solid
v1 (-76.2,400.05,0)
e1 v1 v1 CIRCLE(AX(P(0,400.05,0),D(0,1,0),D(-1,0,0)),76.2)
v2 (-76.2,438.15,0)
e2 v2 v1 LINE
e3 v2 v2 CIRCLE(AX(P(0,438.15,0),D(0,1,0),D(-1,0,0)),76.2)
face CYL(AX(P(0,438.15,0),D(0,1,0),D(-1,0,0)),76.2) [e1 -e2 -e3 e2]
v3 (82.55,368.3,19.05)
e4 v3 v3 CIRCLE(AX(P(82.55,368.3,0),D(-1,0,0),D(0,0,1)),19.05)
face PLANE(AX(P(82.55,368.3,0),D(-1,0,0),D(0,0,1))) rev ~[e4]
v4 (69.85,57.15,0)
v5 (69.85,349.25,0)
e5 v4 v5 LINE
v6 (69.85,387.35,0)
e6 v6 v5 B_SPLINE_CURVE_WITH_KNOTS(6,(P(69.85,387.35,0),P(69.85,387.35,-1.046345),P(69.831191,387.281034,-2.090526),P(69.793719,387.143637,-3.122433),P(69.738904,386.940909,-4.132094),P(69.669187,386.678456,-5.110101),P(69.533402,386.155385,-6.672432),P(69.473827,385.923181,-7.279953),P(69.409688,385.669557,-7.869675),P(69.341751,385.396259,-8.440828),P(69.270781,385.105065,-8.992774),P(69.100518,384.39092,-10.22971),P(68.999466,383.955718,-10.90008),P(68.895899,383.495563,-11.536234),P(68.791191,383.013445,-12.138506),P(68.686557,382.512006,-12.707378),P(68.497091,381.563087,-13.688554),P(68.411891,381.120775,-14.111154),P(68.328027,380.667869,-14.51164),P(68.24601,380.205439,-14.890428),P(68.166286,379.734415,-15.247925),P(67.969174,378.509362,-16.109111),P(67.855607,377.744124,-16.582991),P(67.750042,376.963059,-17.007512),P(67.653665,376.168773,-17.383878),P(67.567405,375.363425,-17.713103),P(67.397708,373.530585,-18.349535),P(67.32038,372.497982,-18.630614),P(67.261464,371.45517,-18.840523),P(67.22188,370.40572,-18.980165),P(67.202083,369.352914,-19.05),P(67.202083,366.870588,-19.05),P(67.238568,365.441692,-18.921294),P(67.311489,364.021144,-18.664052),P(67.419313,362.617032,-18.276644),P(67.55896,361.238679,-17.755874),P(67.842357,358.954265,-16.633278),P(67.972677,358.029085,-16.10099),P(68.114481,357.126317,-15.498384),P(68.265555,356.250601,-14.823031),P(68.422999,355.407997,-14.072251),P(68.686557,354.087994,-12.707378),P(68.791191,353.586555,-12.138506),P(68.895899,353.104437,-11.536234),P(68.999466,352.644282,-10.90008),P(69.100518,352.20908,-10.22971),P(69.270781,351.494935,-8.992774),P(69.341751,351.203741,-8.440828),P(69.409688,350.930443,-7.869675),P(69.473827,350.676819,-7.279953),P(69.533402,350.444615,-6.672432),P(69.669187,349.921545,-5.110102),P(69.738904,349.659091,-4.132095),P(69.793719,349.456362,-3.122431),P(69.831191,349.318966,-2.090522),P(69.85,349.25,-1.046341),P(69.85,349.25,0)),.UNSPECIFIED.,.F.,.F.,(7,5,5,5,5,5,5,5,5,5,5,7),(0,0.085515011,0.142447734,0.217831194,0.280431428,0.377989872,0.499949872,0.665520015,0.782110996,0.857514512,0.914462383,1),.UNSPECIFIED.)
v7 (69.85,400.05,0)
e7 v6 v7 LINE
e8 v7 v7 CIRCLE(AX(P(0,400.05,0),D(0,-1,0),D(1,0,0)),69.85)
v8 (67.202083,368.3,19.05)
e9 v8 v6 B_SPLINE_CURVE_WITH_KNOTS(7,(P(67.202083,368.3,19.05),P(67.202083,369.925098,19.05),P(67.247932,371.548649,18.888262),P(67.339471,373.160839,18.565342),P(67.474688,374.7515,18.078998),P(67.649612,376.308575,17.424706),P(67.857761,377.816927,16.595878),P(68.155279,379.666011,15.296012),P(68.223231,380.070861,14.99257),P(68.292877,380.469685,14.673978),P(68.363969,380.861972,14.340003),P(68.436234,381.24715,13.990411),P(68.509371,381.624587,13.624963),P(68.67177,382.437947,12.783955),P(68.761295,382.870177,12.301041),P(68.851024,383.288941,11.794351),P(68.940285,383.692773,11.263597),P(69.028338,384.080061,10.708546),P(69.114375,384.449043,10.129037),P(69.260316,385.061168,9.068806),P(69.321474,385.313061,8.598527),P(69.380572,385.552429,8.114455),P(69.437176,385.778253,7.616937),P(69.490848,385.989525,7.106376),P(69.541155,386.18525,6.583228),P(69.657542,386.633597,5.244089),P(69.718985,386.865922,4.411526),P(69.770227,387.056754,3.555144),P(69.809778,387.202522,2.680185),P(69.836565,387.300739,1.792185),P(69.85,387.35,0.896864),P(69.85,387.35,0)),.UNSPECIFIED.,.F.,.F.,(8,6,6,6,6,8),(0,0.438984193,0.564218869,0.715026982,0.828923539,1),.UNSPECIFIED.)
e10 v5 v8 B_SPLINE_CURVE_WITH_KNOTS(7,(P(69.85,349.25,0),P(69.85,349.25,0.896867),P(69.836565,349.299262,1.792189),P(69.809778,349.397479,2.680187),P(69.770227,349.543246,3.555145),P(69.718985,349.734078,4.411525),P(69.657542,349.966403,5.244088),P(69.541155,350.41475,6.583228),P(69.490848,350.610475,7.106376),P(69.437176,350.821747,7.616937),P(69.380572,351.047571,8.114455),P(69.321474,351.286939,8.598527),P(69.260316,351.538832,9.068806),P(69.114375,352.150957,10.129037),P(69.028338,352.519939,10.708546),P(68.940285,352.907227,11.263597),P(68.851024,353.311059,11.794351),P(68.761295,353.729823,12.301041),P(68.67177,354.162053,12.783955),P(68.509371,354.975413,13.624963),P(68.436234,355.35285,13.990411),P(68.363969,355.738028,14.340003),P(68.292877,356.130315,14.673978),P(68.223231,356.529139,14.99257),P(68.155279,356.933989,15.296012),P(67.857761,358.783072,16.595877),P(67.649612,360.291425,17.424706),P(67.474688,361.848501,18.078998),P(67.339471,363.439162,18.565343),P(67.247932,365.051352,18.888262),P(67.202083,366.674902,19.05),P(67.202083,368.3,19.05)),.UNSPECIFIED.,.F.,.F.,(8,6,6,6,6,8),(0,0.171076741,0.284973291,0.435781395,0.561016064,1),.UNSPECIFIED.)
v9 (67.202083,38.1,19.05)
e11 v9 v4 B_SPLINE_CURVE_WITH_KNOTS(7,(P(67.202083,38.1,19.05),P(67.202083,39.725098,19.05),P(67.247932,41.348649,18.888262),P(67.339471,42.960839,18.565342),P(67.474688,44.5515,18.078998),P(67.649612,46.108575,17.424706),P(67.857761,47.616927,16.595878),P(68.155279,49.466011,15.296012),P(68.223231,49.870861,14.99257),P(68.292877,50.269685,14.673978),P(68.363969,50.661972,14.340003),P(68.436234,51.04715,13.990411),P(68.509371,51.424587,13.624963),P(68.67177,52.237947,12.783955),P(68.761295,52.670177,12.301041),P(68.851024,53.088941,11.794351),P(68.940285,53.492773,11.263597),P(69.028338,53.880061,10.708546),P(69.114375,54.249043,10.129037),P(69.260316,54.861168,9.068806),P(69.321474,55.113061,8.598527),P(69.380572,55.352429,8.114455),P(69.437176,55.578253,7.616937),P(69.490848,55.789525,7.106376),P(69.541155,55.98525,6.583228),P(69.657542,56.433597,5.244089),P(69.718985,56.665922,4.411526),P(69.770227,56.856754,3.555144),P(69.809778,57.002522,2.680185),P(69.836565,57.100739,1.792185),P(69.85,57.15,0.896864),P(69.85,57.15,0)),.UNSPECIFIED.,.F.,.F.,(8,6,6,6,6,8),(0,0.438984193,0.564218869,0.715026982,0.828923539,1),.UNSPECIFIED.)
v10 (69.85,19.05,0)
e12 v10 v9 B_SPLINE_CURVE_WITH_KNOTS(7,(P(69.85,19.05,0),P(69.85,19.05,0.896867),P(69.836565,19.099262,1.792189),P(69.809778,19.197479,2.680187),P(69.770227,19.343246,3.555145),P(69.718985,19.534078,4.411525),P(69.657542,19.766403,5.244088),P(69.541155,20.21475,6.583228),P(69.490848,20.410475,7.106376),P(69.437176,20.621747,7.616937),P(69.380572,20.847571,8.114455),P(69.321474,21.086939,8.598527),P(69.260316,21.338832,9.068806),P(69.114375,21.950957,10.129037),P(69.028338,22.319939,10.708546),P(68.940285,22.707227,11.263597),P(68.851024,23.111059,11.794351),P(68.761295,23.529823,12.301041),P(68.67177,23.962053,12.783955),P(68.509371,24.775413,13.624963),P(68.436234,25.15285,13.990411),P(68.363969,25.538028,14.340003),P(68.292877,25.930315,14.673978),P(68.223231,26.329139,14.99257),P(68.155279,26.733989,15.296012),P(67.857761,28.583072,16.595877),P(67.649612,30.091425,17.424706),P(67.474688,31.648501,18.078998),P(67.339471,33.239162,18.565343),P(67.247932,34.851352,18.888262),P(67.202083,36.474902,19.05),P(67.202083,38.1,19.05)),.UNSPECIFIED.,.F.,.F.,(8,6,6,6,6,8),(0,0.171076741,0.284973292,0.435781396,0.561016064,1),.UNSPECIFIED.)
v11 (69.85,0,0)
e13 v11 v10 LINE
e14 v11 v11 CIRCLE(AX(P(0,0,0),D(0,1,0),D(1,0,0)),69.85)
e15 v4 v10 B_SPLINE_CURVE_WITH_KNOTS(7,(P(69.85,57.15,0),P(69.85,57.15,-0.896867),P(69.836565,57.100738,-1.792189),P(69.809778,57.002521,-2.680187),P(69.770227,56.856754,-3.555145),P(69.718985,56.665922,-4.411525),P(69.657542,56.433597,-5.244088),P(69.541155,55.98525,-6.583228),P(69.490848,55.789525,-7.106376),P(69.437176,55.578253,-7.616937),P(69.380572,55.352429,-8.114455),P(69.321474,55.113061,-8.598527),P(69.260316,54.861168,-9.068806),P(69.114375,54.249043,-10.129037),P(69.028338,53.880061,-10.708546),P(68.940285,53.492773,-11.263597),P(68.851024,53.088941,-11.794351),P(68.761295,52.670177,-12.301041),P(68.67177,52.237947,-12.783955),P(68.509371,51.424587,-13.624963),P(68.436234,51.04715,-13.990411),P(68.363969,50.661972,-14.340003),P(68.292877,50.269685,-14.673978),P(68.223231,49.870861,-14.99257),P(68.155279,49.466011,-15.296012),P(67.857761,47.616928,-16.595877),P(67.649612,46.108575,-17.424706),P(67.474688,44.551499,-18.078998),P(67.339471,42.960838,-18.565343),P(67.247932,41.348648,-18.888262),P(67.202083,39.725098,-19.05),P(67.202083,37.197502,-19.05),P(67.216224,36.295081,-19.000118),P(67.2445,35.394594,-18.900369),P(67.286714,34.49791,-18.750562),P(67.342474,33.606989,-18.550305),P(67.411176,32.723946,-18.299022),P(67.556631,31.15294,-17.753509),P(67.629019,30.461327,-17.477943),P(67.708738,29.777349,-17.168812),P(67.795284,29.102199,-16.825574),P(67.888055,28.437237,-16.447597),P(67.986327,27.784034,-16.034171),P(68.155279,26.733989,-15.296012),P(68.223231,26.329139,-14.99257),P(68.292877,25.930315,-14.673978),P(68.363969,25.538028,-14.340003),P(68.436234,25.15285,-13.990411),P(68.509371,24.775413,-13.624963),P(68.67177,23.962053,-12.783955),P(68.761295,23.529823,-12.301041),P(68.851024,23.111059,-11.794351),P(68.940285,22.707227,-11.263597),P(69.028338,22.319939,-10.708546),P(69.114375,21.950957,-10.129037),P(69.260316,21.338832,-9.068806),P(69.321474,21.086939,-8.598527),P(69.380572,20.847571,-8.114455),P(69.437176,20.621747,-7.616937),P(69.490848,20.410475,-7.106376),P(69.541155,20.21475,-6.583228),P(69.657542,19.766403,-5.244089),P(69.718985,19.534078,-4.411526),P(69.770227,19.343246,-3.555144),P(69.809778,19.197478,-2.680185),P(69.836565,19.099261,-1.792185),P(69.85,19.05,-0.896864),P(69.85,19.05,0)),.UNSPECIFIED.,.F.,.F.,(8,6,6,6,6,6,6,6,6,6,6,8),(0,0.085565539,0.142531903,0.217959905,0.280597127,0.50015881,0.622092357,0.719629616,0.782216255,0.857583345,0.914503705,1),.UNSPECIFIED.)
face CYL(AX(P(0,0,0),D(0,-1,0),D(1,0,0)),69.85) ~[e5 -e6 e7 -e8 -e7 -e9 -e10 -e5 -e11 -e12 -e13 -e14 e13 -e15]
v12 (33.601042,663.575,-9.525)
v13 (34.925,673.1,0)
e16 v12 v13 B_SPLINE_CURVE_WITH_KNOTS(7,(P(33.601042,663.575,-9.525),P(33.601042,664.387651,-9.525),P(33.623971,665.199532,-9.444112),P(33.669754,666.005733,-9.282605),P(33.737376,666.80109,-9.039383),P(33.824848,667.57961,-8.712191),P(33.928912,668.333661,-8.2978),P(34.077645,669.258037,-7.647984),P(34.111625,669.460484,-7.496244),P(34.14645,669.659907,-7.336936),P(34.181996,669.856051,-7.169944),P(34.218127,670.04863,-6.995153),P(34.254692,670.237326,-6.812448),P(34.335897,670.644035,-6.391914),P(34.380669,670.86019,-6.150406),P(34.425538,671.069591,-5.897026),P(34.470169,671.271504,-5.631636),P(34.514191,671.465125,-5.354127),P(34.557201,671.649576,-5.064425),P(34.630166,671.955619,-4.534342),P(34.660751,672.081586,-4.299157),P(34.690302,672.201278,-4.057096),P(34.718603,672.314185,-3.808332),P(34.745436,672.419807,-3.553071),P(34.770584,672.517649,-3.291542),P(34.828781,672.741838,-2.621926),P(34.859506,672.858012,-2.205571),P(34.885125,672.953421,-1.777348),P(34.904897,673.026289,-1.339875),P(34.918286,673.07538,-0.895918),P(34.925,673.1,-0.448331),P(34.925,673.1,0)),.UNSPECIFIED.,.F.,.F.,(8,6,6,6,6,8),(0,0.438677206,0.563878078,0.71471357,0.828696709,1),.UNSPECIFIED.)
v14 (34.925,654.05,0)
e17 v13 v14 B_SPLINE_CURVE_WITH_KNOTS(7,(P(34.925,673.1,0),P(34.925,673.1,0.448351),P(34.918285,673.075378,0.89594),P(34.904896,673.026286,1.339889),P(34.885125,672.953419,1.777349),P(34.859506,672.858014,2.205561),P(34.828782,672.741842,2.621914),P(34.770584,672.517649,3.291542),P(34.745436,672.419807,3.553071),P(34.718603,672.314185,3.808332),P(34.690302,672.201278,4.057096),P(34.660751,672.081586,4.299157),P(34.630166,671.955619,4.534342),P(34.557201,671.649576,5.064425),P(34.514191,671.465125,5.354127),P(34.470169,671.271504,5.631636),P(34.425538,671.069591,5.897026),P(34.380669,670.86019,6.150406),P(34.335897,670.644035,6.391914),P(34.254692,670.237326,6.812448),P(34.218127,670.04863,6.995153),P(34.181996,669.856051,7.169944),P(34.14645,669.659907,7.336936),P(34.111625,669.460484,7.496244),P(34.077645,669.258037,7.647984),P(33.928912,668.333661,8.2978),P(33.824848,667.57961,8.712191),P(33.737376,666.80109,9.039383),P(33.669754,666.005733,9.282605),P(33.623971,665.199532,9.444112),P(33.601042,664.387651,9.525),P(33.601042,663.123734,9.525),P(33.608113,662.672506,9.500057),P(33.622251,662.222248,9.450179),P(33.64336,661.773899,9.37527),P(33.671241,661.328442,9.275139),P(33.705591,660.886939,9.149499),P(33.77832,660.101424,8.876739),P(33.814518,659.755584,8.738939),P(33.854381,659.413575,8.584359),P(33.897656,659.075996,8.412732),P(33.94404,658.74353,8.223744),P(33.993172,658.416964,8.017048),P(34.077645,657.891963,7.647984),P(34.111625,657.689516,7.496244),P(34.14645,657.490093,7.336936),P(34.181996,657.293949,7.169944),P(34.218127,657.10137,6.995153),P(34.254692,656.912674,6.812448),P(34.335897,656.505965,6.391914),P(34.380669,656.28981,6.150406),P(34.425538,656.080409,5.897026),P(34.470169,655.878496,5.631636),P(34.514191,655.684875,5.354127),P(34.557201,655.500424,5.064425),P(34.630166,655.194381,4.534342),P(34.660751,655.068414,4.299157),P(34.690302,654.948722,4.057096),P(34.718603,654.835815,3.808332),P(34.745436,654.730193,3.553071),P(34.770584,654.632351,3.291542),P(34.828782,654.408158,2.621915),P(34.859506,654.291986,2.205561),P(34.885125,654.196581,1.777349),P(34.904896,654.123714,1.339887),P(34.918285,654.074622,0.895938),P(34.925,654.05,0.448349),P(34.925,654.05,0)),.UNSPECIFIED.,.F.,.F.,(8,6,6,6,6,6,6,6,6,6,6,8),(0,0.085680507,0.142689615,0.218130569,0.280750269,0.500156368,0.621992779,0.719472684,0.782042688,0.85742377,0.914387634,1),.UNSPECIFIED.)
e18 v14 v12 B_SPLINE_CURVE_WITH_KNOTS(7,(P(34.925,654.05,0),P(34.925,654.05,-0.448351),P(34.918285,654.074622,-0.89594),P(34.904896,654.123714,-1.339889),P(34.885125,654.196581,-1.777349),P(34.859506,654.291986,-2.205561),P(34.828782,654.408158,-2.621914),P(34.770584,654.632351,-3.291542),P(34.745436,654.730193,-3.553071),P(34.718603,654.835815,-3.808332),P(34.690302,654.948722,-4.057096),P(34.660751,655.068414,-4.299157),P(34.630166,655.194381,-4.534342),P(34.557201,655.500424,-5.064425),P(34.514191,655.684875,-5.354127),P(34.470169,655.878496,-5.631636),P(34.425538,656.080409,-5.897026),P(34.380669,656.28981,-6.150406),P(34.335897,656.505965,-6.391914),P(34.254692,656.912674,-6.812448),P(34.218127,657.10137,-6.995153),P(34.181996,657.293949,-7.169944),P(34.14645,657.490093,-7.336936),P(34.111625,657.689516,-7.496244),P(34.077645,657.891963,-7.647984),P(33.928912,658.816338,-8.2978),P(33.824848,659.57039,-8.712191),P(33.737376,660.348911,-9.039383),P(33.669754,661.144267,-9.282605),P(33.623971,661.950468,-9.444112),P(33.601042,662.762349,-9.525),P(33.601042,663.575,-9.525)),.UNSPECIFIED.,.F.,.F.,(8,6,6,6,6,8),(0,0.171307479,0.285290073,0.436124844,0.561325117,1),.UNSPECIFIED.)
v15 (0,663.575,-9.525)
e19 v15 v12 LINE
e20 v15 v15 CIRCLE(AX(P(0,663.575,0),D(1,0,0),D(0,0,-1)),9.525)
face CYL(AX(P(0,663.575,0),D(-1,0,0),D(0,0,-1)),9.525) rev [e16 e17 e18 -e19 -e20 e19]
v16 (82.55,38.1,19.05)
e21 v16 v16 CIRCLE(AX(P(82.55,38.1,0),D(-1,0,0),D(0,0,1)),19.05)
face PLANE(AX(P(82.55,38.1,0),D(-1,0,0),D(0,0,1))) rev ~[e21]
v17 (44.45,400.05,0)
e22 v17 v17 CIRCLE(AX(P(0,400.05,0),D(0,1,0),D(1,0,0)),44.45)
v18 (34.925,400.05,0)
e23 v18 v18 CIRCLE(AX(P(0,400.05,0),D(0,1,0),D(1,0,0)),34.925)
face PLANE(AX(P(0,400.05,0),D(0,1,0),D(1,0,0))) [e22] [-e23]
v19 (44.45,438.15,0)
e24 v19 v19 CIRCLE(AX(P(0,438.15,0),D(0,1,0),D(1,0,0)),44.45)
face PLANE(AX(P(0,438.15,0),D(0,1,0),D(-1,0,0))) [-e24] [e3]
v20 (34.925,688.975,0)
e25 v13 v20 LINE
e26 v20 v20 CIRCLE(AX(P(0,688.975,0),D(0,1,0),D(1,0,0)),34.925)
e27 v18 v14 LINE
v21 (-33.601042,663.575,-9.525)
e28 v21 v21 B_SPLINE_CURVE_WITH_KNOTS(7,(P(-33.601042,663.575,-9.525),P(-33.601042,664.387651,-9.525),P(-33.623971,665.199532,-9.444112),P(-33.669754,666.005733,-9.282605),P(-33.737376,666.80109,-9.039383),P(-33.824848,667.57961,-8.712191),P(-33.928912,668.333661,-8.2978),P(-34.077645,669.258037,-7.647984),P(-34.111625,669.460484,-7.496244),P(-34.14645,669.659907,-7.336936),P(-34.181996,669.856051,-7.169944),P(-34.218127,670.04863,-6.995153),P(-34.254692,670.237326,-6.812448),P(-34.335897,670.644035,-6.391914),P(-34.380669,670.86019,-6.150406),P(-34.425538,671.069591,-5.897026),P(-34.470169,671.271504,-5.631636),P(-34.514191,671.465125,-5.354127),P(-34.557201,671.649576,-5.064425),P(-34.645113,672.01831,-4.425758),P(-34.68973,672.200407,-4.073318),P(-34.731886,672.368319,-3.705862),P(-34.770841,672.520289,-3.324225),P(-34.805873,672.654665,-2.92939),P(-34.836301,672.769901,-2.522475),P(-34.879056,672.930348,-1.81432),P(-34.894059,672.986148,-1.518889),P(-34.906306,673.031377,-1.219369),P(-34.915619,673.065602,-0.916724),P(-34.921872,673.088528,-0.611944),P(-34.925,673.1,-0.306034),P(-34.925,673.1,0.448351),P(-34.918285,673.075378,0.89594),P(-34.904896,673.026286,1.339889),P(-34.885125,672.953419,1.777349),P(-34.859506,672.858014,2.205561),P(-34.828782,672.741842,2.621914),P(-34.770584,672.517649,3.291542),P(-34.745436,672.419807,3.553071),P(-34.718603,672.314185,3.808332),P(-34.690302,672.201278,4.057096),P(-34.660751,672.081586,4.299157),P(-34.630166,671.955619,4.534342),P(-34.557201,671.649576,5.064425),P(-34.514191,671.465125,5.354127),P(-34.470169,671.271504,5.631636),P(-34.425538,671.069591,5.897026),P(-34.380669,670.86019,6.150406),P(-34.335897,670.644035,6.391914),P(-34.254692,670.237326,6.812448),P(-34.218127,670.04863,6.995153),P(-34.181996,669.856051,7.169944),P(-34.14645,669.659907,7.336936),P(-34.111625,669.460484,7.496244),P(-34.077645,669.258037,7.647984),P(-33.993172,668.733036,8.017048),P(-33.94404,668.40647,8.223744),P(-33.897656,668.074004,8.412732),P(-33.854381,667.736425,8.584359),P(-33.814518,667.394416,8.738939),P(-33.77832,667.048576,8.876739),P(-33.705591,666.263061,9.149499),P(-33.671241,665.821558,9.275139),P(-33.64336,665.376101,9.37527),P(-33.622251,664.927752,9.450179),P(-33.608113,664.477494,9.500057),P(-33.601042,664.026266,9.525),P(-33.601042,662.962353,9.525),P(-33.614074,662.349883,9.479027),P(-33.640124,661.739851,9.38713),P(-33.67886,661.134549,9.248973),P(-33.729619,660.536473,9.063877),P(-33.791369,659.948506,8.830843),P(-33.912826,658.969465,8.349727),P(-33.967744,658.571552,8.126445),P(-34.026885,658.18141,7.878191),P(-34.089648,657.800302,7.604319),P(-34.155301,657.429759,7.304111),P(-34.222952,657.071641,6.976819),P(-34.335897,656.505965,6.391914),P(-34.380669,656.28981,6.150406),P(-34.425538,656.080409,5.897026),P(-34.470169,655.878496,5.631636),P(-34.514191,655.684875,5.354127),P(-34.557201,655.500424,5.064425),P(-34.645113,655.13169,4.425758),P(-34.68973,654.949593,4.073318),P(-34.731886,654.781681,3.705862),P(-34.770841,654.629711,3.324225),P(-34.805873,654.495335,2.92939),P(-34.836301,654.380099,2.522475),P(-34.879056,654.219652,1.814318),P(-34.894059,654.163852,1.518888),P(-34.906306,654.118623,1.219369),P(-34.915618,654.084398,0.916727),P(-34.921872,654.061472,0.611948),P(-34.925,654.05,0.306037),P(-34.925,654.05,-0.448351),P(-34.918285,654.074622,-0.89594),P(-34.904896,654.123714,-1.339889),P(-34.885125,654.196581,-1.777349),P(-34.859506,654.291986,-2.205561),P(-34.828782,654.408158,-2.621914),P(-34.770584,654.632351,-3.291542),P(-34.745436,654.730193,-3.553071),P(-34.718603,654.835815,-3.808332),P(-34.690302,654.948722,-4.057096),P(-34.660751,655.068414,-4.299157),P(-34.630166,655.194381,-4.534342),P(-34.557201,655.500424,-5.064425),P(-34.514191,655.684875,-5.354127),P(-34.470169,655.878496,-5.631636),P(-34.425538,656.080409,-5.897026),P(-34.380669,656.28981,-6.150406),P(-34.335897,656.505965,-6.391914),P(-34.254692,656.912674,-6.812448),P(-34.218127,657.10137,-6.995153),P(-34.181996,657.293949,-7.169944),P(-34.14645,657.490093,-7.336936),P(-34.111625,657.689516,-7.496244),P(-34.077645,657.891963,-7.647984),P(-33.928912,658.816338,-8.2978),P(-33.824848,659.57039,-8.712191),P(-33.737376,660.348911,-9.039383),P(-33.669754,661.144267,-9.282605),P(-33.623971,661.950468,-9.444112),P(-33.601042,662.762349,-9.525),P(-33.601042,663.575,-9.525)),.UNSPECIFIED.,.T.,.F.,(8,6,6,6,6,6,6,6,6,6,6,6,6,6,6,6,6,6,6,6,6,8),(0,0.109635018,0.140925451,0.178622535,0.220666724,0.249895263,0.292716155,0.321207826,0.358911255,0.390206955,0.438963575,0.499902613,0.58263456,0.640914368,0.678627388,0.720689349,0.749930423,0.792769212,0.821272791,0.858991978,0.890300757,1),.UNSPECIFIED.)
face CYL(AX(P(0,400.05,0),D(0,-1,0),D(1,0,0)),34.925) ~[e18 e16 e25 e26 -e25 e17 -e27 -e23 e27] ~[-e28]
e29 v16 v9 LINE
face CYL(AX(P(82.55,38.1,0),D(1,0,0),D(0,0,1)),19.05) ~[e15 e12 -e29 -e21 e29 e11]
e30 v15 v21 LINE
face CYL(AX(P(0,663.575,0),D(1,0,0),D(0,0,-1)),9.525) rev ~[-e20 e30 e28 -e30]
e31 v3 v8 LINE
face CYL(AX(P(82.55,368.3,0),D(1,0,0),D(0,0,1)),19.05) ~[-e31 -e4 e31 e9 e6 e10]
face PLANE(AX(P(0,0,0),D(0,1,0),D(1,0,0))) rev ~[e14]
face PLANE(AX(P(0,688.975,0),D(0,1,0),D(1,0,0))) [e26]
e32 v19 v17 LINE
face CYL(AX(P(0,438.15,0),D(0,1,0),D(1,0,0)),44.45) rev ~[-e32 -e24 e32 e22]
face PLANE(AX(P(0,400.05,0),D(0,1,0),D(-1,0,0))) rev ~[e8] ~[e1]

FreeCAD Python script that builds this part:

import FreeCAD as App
import Part
import Sketcher
Q = App.Units.Quantity

doc = App.newDocument("Part")
params = doc.addObject("Spreadsheet::Sheet", "Params")
for row, (alias, value) in enumerate([
    ("sketch1_diameter", "5.5 in"),
    ("pad1_length", "17.25 in"),
    ("sketch2_diameter", "6 in"),
    ("pad2_length", "1.5 in"),
    ("sketch3_diameter", "3.5 in"),
    ("pocket1_length", "1.5 in"),
    ("sketch4_diameter", "1.5 in"),
    ("pad3_length", "15.347917 mm"),
    ("sketch5_diameter", "2.75 in"),
    ("pad4_length", "11.375 in"),
    ("sketch6_diameter", "0.75 in"),
], start=1):
    params.set(f"A{row}", alias)
    params.set(f"B{row}", "=" + value)
    params.setAlias(f"B{row}", alias)

body = doc.addObject("PartDesign::Body", "Body")

sketch1 = body.newObject("Sketcher::SketchObject", "Sketch")
sketch1.AttachmentSupport = (doc.getObject("XZ_Plane"), [""])
sketch1.MapMode = "FlatFace"
sketch1.addGeometry(Part.Circle(App.Vector(0, 0, 0), App.Vector(0, 0, 1), 70), False)
sketch1.addConstraint([
    Sketcher.Constraint("Coincident", 0, 3, -1, 1),
    Sketcher.Constraint("Diameter", 0, Q("5.5 in")),
])
sketch1.setExpression("Constraints[1]", "Params.sketch1_diameter")
pad1 = body.newObject("PartDesign::Pad", "Pad")
pad1.Profile = sketch1
pad1.setExpression("Length", "Params.pad1_length")
pad1.Reversed = True

sketch2 = body.newObject("Sketcher::SketchObject", "Sketch001")
sketch2.AttachmentSupport = (doc.getObject("XZ_Plane"), [""])
sketch2.MapMode = "FlatFace"
sketch2.AttachmentOffset = App.Placement(App.Vector(0, 0, -17.25 * 25.4), App.Rotation())
sketch2.addGeometry(Part.Circle(App.Vector(0, 0, 0), App.Vector(0, 0, 1), 76), False)
sketch2.addConstraint([
    Sketcher.Constraint("Coincident", 0, 3, -1, 1),
    Sketcher.Constraint("Diameter", 0, Q("6 in")),
])
sketch2.setExpression("Constraints[1]", "Params.sketch2_diameter")
pad2 = body.newObject("PartDesign::Pad", "Pad001")
pad2.Profile = sketch2
pad2.setExpression("Length", "Params.pad2_length")

sketch3 = body.newObject("Sketcher::SketchObject", "Sketch002")
sketch3.AttachmentSupport = (doc.getObject("XZ_Plane"), [""])
sketch3.MapMode = "FlatFace"
sketch3.AttachmentOffset = App.Placement(App.Vector(0, 0, -17.25 * 25.4), App.Rotation())
sketch3.addGeometry(Part.Circle(App.Vector(0, 0, 0), App.Vector(0, 0, 1), 44), False)
sketch3.addConstraint([
    Sketcher.Constraint("Coincident", 0, 3, -1, 1),
    Sketcher.Constraint("Diameter", 0, Q("3.5 in")),
])
sketch3.setExpression("Constraints[1]", "Params.sketch3_diameter")
pocket1 = body.newObject("PartDesign::Pocket", "Pocket")
pocket1.Profile = sketch3
pocket1.setExpression("Length", "Params.pocket1_length")
pocket1.Reversed = True

sketch4 = body.newObject("Sketcher::SketchObject", "Sketch003")
sketch4.AttachmentSupport = (doc.getObject("YZ_Plane"), [""])
sketch4.MapMode = "FlatFace"
sketch4.AttachmentOffset = App.Placement(App.Vector(0, 0, 3.25 * 25.4), App.Rotation())
sketch4.addGeometry([
    Part.Circle(App.Vector(368, 0, 0), App.Vector(0, 0, 1), 19),
    Part.Circle(App.Vector(38, 0, 0), App.Vector(0, 0, 1), 19),
], False)
sketch4.addConstraint([
    Sketcher.Constraint("Equal", 0, 1),
    Sketcher.Constraint("PointOnObject", 0, 3, -1),
    Sketcher.Constraint("PointOnObject", 1, 3, -1),
    Sketcher.Constraint("Diameter", 0, Q("1.5 in")),
    Sketcher.Constraint("DistanceX", 1, 3, 0, 3, Q("13 in")),
    Sketcher.Constraint("DistanceX", -1, 1, 0, 3, Q("14.5 in")),
])
sketch4.setExpression("Constraints[3]", "Params.sketch4_diameter")
pad3 = body.newObject("PartDesign::Pad", "Pad002")
pad3.Profile = sketch4
pad3.setExpression("Length", "Params.pad3_length")
pad3.Reversed = True

sketch5 = body.newObject("Sketcher::SketchObject", "Sketch004")
sketch5.AttachmentSupport = (doc.getObject("XZ_Plane"), [""])
sketch5.MapMode = "FlatFace"
sketch5.AttachmentOffset = App.Placement(App.Vector(0, 0, -15.75 * 25.4), App.Rotation())
sketch5.addGeometry(Part.Circle(App.Vector(0, 0, 0), App.Vector(0, 0, 1), 35), False)
sketch5.addConstraint([
    Sketcher.Constraint("Coincident", 0, 3, -1, 1),
    Sketcher.Constraint("Diameter", 0, Q("2.75 in")),
])
sketch5.setExpression("Constraints[1]", "Params.sketch5_diameter")
pad4 = body.newObject("PartDesign::Pad", "Pad003")
pad4.Profile = sketch5
pad4.setExpression("Length", "Params.pad4_length")
pad4.Reversed = True

sketch6 = body.newObject("Sketcher::SketchObject", "Sketch005")
sketch6.AttachmentSupport = (doc.getObject("YZ_Plane"), [""])
sketch6.MapMode = "FlatFace"
sketch6.addGeometry(Part.Circle(App.Vector(664, 0, 0), App.Vector(0, 0, 1), 10), False)
sketch6.addConstraint([
    Sketcher.Constraint("PointOnObject", 0, 3, -1),
    Sketcher.Constraint("Diameter", 0, Q("0.75 in")),
    Sketcher.Constraint("DistanceX", -1, 1, 0, 3, Q("26.125 in")),
])
sketch6.setExpression("Constraints[1]", "Params.sketch6_diameter")
pocket2 = body.newObject("PartDesign::Pocket", "Pocket001")
pocket2.Profile = sketch6
pocket2.Type = "ThroughAll"
pocket2.Midplane = True

doc.recompute()
